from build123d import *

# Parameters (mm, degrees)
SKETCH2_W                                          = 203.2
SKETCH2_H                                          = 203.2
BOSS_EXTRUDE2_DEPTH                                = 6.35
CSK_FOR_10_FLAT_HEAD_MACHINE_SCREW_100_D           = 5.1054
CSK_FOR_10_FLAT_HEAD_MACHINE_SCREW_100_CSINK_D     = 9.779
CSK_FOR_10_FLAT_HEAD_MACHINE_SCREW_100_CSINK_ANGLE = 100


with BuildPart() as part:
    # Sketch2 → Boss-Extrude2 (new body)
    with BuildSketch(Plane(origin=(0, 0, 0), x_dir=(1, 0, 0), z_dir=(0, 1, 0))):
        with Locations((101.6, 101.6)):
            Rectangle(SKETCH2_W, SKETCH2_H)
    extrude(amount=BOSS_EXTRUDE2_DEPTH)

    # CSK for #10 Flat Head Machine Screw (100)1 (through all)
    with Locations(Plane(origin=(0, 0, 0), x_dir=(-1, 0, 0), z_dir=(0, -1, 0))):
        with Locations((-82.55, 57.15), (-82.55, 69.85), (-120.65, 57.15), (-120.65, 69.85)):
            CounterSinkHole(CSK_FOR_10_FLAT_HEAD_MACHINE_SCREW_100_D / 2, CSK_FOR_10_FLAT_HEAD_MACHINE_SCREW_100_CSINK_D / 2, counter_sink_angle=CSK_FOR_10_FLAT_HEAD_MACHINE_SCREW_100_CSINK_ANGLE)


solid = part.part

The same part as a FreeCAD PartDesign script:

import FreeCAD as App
import Part
import Sketcher
from FreeCAD import Vector
Q = App.Units.Quantity

doc = App.newDocument("Part")
body = doc.addObject("PartDesign::Body", "Body")

sketch1 = body.newObject("Sketcher::SketchObject", "Sketch")
sketch1.AttachmentSupport = (doc.getObject("XZ_Plane"), [""])
sketch1.MapMode = "FlatFace"
sketch1.addGeometry([
    Part.LineSegment(Vector(0, -203, 0), Vector(0, 0, 0)),
    Part.LineSegment(Vector(0, 0, 0), Vector(203, 0, 0)),
    Part.LineSegment(Vector(203, 0, 0), Vector(203, -203, 0)),
    Part.LineSegment(Vector(203, -203, 0), Vector(0, -203, 0)),
], False)
sketch1.addConstraint([
    Sketcher.Constraint("Coincident", 0, 2, 1, 1),
    Sketcher.Constraint("Coincident", 1, 2, 2, 1),
    Sketcher.Constraint("Coincident", 2, 2, 3, 1),
    Sketcher.Constraint("Coincident", 3, 2, 0, 1),
    Sketcher.Constraint("Vertical", 0),
    Sketcher.Constraint("Horizontal", 1),
    Sketcher.Constraint("Vertical", 2),
    Sketcher.Constraint("Horizontal", 3),
    Sketcher.Constraint("Coincident", 0, 2, -1, 1),
    Sketcher.Constraint("Equal", 3, 0),
    Sketcher.Constraint("DistanceX", 1, 1, 1, 2, Q("8 in")),
])
pad1 = body.newObject("PartDesign::Pad", "Pad")
pad1.Profile = sketch1
pad1.Length = Q("0.25 in")
pad1.Reversed = True

sketch2 = body.newObject("Sketcher::SketchObject", "Sketch001")
sketch2.AttachmentSupport = (doc.getObject("XZ_Plane"), [""])
sketch2.MapMode = "FlatFace"
sketch2.addGeometry([
    Part.Circle(Vector(82.5, -57.1, 0), Vector(0, 0, 1), 2.6),
    Part.Circle(Vector(82.5, -69.8, 0), Vector(0, 0, 1), 2.6),
    Part.Circle(Vector(120.7, -57.1, 0), Vector(0, 0, 1), 2.6),
    Part.Circle(Vector(120.7, -69.8, 0), Vector(0, 0, 1), 2.6),
], False)
sketch2.addConstraint([
    Sketcher.Constraint("Equal", 0, 1),
    Sketcher.Constraint("Equal", 1, 2),
    Sketcher.Constraint("Equal", 2, 3),
    Sketcher.Constraint("Horizontal", 0, 3, 2, 3),
    Sketcher.Constraint("Horizontal", 1, 3, 3, 3),
    Sketcher.Constraint("Vertical", 0, 3, 1, 3),
    Sketcher.Constraint("Vertical", 2, 3, 3, 3),
    Sketcher.Constraint("Diameter", 0, Q("0.201 in")),
    Sketcher.Constraint("DistanceY", 1, 3, 0, 3, Q("0.5 in")),
    Sketcher.Constraint("DistanceX", 0, 3, 2, 3, Q("1.5 in")),
    Sketcher.Constraint("DistanceX", -1, 1, 0, 3, Q("3.25 in")),
    Sketcher.Constraint("DistanceY", 0, 3, -1, 1, Q("2.25 in")),
])
doc.recompute()
hole = body.newObject("PartDesign::Hole", "Hole")
hole.Profile = sketch2
hole.ThreadType = "None"
hole.Diameter = Q("0.201 in")
hole.DepthType = "ThroughAll"
hole.HoleCutType = "Countersink"
hole.HoleCutDiameter = Q("0.385 in")
hole.HoleCutCountersinkAngle = 100

doc.recompute()
